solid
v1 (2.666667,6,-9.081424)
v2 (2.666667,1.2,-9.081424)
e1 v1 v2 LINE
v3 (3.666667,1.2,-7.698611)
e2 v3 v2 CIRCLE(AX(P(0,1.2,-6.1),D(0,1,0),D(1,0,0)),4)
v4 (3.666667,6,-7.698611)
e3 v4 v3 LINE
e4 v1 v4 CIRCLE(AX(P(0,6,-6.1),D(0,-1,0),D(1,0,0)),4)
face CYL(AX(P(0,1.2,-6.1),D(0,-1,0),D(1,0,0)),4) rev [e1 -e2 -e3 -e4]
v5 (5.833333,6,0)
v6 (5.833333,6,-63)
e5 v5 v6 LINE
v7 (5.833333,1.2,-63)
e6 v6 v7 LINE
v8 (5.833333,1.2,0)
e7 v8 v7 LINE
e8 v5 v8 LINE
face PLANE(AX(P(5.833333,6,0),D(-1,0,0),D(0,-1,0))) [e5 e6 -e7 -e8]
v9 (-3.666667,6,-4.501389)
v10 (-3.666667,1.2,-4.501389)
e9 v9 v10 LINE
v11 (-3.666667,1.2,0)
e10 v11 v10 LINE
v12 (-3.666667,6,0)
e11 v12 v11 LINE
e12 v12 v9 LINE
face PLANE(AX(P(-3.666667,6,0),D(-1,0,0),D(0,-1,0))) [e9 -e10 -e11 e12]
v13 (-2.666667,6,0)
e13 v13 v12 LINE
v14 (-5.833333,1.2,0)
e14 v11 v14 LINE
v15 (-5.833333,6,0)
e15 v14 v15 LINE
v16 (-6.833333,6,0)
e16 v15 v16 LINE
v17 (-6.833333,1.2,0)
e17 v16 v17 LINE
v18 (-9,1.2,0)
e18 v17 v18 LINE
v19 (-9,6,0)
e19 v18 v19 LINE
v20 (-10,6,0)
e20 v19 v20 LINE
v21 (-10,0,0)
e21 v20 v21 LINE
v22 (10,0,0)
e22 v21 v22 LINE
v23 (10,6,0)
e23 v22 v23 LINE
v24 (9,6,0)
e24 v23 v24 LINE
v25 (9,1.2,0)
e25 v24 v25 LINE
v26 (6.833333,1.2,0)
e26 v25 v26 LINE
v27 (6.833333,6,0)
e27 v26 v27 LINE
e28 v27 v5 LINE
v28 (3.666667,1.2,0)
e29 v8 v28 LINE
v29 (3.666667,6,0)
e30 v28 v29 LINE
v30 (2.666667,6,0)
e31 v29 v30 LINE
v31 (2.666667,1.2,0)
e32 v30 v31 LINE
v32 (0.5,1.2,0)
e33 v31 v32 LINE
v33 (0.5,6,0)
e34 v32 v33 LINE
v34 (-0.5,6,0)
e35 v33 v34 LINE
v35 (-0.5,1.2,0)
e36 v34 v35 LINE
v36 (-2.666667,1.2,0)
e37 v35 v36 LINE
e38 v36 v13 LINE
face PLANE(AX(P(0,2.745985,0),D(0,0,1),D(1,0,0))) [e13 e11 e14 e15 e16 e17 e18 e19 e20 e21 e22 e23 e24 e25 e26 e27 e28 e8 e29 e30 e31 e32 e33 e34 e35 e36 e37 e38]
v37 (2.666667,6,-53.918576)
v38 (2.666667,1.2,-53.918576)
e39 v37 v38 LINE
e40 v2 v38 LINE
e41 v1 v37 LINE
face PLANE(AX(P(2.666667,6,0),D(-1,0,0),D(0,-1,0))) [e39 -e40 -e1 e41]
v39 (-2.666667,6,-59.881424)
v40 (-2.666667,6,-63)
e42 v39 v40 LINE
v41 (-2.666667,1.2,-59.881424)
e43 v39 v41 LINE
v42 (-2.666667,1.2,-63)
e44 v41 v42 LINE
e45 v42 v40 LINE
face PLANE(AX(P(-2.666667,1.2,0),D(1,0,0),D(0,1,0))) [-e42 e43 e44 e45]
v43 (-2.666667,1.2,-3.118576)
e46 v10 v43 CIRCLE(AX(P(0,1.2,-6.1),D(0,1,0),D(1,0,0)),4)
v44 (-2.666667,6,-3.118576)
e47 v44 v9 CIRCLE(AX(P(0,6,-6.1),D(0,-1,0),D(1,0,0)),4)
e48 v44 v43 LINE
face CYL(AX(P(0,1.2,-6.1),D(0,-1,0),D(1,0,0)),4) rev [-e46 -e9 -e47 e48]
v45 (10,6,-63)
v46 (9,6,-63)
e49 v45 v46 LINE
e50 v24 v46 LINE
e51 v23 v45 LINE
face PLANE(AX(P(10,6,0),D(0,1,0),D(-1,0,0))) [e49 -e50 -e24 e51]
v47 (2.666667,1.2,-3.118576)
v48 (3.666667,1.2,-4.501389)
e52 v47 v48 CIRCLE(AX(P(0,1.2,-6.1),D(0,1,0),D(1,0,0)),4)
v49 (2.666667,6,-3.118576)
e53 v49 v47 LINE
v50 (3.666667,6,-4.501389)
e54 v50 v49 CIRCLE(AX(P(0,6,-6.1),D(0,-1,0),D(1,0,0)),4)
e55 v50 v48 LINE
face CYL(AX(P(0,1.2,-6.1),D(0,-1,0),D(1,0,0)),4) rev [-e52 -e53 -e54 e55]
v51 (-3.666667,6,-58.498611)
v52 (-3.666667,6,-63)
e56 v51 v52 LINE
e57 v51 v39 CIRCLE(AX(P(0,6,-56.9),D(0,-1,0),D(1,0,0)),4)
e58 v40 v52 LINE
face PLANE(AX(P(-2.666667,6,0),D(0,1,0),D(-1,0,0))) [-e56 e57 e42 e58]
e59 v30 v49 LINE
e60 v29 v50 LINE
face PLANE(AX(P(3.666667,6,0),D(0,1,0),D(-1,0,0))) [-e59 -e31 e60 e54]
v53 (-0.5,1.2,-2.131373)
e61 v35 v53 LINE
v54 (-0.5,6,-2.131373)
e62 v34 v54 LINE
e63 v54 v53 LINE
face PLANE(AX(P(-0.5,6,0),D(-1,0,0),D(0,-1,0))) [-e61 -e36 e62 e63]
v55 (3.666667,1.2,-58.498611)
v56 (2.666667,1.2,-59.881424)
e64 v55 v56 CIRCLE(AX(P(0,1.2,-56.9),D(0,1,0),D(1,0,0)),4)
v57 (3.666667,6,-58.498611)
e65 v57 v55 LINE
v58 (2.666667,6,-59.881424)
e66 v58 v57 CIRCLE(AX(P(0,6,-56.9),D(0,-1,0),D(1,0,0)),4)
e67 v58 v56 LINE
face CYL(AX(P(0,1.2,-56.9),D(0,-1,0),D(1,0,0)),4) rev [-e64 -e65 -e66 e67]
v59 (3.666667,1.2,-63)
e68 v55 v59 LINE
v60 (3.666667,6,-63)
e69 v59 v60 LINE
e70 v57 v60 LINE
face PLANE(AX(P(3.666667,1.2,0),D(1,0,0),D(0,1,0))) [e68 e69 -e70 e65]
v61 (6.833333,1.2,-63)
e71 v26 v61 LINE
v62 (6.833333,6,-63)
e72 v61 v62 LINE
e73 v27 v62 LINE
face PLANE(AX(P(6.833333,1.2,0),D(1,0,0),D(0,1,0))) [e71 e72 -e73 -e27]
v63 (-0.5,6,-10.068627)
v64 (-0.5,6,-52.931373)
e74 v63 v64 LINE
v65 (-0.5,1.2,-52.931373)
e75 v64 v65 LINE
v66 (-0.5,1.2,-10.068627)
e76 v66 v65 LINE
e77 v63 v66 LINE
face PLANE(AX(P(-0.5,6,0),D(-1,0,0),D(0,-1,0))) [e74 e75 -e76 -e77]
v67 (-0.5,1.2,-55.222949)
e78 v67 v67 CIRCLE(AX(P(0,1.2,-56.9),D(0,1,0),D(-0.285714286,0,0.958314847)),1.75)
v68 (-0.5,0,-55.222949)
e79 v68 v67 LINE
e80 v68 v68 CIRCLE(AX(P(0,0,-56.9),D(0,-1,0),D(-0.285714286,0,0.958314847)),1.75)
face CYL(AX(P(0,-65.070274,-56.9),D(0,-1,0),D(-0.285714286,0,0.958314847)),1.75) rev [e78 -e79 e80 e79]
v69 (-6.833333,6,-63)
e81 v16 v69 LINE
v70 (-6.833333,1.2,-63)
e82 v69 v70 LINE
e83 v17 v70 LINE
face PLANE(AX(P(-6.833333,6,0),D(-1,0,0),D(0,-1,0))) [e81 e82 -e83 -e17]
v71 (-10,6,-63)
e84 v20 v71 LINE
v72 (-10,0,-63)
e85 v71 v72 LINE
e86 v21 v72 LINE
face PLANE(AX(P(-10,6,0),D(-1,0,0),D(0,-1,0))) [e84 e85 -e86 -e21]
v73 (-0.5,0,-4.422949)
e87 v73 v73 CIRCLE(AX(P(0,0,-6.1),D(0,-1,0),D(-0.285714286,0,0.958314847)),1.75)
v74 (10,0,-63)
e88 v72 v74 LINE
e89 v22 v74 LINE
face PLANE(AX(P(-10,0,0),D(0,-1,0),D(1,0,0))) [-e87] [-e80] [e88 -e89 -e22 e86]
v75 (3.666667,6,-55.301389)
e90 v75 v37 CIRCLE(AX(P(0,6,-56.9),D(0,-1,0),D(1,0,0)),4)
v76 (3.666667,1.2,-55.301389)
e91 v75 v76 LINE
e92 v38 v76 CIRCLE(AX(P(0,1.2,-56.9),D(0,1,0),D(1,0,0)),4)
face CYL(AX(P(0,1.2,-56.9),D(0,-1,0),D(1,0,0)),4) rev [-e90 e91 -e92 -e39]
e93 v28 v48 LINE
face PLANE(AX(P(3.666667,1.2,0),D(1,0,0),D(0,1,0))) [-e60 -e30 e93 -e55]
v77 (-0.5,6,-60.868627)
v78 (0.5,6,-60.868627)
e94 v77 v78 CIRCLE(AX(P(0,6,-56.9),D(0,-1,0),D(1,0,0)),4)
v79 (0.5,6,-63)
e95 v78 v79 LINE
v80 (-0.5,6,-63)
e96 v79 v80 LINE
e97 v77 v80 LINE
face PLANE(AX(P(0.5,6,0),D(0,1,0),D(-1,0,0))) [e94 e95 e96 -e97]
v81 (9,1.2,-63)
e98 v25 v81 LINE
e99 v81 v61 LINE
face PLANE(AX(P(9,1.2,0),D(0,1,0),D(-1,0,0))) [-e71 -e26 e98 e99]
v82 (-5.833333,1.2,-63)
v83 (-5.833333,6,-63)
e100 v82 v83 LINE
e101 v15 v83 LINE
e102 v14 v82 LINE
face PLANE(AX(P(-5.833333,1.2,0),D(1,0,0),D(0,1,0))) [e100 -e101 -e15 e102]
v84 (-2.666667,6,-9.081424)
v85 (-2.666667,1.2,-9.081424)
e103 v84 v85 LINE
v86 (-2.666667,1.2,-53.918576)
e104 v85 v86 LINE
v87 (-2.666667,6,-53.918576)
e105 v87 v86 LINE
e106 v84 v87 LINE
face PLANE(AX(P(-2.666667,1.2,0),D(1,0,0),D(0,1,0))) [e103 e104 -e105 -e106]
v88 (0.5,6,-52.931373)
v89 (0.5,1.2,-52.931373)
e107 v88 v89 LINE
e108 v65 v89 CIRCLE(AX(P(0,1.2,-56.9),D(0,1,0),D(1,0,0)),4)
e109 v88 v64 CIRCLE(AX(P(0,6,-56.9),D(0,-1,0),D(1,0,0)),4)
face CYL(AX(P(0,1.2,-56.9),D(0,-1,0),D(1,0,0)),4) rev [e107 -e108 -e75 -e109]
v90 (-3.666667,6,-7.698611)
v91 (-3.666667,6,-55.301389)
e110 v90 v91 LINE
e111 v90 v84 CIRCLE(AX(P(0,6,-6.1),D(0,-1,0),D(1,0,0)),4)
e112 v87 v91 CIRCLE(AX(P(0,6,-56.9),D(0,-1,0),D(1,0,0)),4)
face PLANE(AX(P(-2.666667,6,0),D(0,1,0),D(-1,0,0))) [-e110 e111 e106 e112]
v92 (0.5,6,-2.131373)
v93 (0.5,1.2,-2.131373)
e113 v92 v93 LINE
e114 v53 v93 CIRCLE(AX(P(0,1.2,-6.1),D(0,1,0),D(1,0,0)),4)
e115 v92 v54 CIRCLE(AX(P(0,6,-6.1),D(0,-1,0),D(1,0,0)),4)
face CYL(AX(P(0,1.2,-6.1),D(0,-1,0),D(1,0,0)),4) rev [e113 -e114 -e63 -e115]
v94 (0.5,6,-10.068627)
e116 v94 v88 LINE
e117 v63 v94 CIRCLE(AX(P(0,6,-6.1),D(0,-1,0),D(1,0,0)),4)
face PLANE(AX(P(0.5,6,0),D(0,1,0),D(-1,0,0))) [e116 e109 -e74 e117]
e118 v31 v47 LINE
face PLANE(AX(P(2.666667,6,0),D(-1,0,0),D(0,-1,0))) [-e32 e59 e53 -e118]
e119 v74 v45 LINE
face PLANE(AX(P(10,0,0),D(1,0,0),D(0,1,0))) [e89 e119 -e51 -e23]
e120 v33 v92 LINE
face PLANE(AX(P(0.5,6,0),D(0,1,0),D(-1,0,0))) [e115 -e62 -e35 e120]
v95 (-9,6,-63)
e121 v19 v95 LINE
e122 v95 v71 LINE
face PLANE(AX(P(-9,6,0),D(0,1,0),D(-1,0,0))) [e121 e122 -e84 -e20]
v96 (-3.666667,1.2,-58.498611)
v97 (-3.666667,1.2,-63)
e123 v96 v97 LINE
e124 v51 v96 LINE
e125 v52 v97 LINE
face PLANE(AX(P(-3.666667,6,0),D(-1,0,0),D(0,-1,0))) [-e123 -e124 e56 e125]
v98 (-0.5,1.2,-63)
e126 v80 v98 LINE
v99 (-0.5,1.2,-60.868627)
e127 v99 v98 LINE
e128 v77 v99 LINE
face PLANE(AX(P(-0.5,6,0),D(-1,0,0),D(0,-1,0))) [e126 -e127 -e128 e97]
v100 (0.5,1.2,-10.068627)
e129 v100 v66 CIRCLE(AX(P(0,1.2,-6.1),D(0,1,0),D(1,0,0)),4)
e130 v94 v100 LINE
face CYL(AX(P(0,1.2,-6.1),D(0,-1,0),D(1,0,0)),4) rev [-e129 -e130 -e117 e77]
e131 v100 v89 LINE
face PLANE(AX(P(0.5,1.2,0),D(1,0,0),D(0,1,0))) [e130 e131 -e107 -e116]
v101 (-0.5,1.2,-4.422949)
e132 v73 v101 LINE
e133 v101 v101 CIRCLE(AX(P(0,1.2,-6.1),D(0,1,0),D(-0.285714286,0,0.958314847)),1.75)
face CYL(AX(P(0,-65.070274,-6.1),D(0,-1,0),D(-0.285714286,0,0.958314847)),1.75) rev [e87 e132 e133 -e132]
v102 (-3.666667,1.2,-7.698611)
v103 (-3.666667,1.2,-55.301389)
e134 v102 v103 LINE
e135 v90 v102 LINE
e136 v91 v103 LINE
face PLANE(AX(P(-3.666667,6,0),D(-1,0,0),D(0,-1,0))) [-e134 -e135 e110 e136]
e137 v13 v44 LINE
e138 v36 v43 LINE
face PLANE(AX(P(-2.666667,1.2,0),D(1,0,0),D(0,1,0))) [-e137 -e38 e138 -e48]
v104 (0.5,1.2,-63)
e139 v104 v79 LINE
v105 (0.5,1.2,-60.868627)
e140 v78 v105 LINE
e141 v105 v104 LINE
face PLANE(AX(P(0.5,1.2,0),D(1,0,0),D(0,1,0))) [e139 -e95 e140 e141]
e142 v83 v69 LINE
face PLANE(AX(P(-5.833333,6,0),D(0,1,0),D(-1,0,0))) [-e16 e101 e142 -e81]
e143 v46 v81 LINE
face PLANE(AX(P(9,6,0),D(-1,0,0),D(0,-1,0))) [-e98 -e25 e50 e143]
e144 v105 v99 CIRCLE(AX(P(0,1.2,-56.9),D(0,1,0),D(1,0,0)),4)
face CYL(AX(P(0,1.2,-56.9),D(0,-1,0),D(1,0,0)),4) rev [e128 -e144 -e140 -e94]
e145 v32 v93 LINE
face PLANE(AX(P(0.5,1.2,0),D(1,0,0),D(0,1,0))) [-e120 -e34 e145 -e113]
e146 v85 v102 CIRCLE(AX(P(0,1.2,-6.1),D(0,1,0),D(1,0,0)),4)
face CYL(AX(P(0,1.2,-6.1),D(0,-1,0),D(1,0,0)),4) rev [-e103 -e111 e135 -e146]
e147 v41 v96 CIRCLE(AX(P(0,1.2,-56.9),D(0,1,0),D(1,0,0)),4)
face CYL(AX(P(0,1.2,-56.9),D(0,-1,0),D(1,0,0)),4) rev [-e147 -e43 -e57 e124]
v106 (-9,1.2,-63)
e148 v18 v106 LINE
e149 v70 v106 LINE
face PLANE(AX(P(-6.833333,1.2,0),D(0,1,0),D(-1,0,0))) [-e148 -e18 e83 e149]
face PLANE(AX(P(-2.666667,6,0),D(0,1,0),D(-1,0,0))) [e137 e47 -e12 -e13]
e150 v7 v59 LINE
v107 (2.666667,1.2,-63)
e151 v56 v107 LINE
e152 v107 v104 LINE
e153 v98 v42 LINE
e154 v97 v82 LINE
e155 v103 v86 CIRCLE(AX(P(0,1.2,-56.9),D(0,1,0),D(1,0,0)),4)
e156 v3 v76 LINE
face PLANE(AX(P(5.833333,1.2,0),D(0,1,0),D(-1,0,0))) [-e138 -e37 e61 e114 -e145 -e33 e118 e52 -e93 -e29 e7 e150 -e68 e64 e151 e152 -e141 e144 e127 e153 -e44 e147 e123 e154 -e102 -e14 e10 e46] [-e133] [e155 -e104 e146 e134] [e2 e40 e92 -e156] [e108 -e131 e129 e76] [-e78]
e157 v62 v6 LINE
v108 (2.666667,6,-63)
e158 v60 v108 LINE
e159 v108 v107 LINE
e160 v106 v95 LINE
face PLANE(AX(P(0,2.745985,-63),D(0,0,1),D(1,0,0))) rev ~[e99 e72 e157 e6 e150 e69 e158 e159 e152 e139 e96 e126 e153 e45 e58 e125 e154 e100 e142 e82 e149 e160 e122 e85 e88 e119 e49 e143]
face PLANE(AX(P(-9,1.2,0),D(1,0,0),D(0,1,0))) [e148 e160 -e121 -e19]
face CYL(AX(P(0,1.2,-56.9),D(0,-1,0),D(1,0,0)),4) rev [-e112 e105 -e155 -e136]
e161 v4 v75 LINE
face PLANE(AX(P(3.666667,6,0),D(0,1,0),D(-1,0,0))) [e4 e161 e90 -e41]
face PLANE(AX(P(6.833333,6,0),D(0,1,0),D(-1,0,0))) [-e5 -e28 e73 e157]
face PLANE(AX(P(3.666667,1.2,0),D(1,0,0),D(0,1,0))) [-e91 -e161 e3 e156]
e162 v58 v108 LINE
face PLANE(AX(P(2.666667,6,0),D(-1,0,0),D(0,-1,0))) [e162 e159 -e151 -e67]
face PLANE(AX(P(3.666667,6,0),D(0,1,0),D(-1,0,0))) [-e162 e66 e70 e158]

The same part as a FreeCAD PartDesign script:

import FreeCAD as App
import Part
import Sketcher
from FreeCAD import Vector
Q = App.Units.Quantity


def add_polygon(sketch, points):
    """Adds a closed chain of lines whose ends are joined by coincident constraints."""
    first, n = sketch.GeometryCount, len(points)
    for a, b in zip(points, points[1:] + points[:1]):
        sketch.addGeometry(Part.LineSegment(App.Vector(*a, 0), App.Vector(*b, 0)), False)
    for i in range(n):
        sketch.addConstraint(Sketcher.Constraint("Coincident", first + i, 2, first + (i + 1) % n, 1))

doc = App.newDocument("Part")
body = doc.addObject("PartDesign::Body", "Body")

sketch1 = doc.addObject("Sketcher::SketchObject", "Sketch")
body.addObject(sketch1)
sketch1.AttachmentSupport = (doc.XY_Plane, [""])
sketch1.MapMode = "FlatFace"
add_polygon(sketch1, [(-10, 6), (-10, 0), (10, 0), (10, 6), (9, 6), (9, 1.2), (6.8, 1.2), (6.8, 6), (5.8, 6), (5.8, 1.2), (3.7, 1.2), (3.7, 6), (2.7, 6), (2.7, 1.2), (0.5, 1.2), (0.5, 6), (-0.5, 6), (-0.5, 1.2), (-2.7, 1.2), (-2.7, 6), (-3.7, 6), (-3.7, 1.2), (-5.8, 1.2), (-5.8, 6), (-6.8, 6), (-6.8, 1.2), (-9, 1.2), (-9, 6)])
sketch1.addConstraint(Sketcher.Constraint("Vertical", 0))
sketch1.addConstraint(Sketcher.Constraint("Horizontal", 1))
sketch1.addConstraint(Sketcher.Constraint("Vertical", 2))
sketch1.addConstraint(Sketcher.Constraint("Horizontal", 3))
sketch1.addConstraint(Sketcher.Constraint("Vertical", 4))
sketch1.addConstraint(Sketcher.Constraint("Horizontal", 5))
sketch1.addConstraint(Sketcher.Constraint("Vertical", 6))
sketch1.addConstraint(Sketcher.Constraint("Horizontal", 7))
sketch1.addConstraint(Sketcher.Constraint("Vertical", 8))
sketch1.addConstraint(Sketcher.Constraint("Horizontal", 9))
sketch1.addConstraint(Sketcher.Constraint("Vertical", 10))
sketch1.addConstraint(Sketcher.Constraint("Horizontal", 11))
sketch1.addConstraint(Sketcher.Constraint("Vertical", 12))
sketch1.addConstraint(Sketcher.Constraint("Horizontal", 13))
sketch1.addConstraint(Sketcher.Constraint("Vertical", 14))
sketch1.addConstraint(Sketcher.Constraint("Horizontal", 15))
sketch1.addConstraint(Sketcher.Constraint("Vertical", 16))
sketch1.addConstraint(Sketcher.Constraint("Horizontal", 17))
sketch1.addConstraint(Sketcher.Constraint("Vertical", 18))
sketch1.addConstraint(Sketcher.Constraint("Horizontal", 19))
sketch1.addConstraint(Sketcher.Constraint("Vertical", 20))
sketch1.addConstraint(Sketcher.Constraint("Horizontal", 21))
sketch1.addConstraint(Sketcher.Constraint("Vertical", 22))
sketch1.addConstraint(Sketcher.Constraint("Horizontal", 23))
sketch1.addConstraint(Sketcher.Constraint("Vertical", 24))
sketch1.addConstraint(Sketcher.Constraint("Horizontal", 25))
sketch1.addConstraint(Sketcher.Constraint("Vertical", 26))
sketch1.addConstraint(Sketcher.Constraint("Horizontal", 27))
sketch1.addConstraint(Sketcher.Constraint("Symmetric", 0, 2, 1, 2, -1, 1))
sketch1.addConstraint(Sketcher.Constraint("Symmetric", 13, 2, 16, 2, -2))
sketch1.addConstraint(Sketcher.Constraint("Symmetric", 11, 2, 18, 2, -2))
sketch1.addConstraint(Sketcher.Constraint("Symmetric", 9, 2, 20, 2, -2))
sketch1.addConstraint(Sketcher.Constraint("Symmetric", 7, 2, 22, 2, -2))
sketch1.addConstraint(Sketcher.Constraint("Symmetric", 5, 2, 24, 2, -2))
sketch1.addConstraint(Sketcher.Constraint("Symmetric", 3, 2, 26, 2, -2))
sketch1.addConstraint(Sketcher.Constraint("Horizontal", 3, 2, 6, 2))
sketch1.addConstraint(Sketcher.Constraint("Horizontal", 5, 2, 8, 2))
sketch1.addConstraint(Sketcher.Constraint("Horizontal", 7, 2, 10, 2))
sketch1.addConstraint(Sketcher.Constraint("Horizontal", 9, 2, 12, 2))
sketch1.addConstraint(Sketcher.Constraint("Horizontal", 11, 2, 14, 2))
sketch1.addConstraint(Sketcher.Constraint("Equal", 3, 7))
sketch1.addConstraint(Sketcher.Constraint("Equal", 5, 9))
sketch1.addConstraint(Sketcher.Constraint("Equal", 7, 11))
sketch1.addConstraint(Sketcher.Constraint("Equal", 9, 13))
sketch1.addConstraint(Sketcher.Constraint("Equal", 11, 15))
sketch1.addConstraint(Sketcher.Constraint("DistanceX", 1, 1, 1, 2, Q("20 mm")))
sketch1.addConstraint(Sketcher.Constraint("DistanceX", 3, 2, 3, 1, Q("1 mm")))
sketch1.addConstraint(Sketcher.Constraint("DistanceY", 0, 2, 0, 1, Q("6 mm")))
sketch1.addConstraint(Sketcher.Constraint("DistanceY", 4, 2, 4, 1, Q("4.8 mm")))
pad1 = doc.addObject("PartDesign::Pad", "Pad")
body.addObject(pad1)
pad1.Profile = sketch1
pad1.Length = 63
pad1.Reversed = True

sketch2 = doc.addObject("Sketcher::SketchObject", "Sketch001")
body.addObject(sketch2)
sketch2.AttachmentSupport = (doc.XZ_Plane, [""])
sketch2.MapMode = "FlatFace"
sketch2.addGeometry(Part.Circle(Vector(0, -56.9, 0), Vector(0, 0, 1), 1.8), False)
sketch2.addGeometry(Part.Circle(Vector(0, -6.1, 0), Vector(0, 0, 1), 1.8), False)
sketch2.addConstraint(Sketcher.Constraint("Equal", 0, 1))
sketch2.addConstraint(Sketcher.Constraint("PointOnObject", 0, 3, -2))
sketch2.addConstraint(Sketcher.Constraint("PointOnObject", 1, 3, -2))
sketch2.addConstraint(Sketcher.Constraint("Diameter", 0, Q("3.5 mm")))
sketch2.addConstraint(Sketcher.Constraint("DistanceY", 0, 3, -1, 1, Q("56.9 mm")))
sketch2.addConstraint(Sketcher.Constraint("DistanceY", 1, 3, -1, 1, Q("6.1 mm")))
pocket1 = doc.addObject("PartDesign::Pocket", "Pocket")
body.addObject(pocket1)
pocket1.Profile = sketch2
pocket1.Type = "ThroughAll"
pocket1.Midplane = True

sketch3 = doc.addObject("Sketcher::SketchObject", "Sketch002")
body.addObject(sketch3)
sketch3.AttachmentSupport = (doc.XZ_Plane, [""])
sketch3.MapMode = "FlatFace"
sketch3.AttachmentOffset = App.Placement(Vector(0, 0, -1.2), App.Rotation())
sketch3.addGeometry(Part.Circle(Vector(0, -56.9, 0), Vector(0, 0, 1), 4), False)
sketch3.addGeometry(Part.Circle(Vector(0, -6.1, 0), Vector(0, 0, 1), 4), False)
sketch3.addConstraint(Sketcher.Constraint("Equal", 0, 1))
sketch3.addConstraint(Sketcher.Constraint("PointOnObject", 0, 3, -2))
sketch3.addConstraint(Sketcher.Constraint("PointOnObject", 1, 3, -2))
sketch3.addConstraint(Sketcher.Constraint("Diameter", 0, Q("8 mm")))
sketch3.addConstraint(Sketcher.Constraint("DistanceY", 0, 3, -1, 1, Q("56.9 mm")))
sketch3.addConstraint(Sketcher.Constraint("DistanceY", 1, 3, -1, 1, Q("6.1 mm")))
pocket2 = doc.addObject("PartDesign::Pocket", "Pocket001")
body.addObject(pocket2)
pocket2.Profile = sketch3
pocket2.Length = 63

doc.recompute()
